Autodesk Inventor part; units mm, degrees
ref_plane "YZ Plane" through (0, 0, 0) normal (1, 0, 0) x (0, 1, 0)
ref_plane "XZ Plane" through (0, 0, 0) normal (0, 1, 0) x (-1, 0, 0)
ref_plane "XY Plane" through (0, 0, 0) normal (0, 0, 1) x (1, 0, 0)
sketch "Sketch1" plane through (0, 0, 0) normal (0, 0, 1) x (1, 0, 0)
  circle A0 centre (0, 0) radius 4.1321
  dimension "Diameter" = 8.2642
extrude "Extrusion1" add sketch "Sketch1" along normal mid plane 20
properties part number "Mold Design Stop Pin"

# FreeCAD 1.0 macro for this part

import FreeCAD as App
import Part
import Sketcher
from FreeCAD import Vector

doc = App.newDocument("Part")
params = doc.addObject("Spreadsheet::Sheet", "Params")
for row, (alias, value) in enumerate([
    ("pad1_length", "20 mm"),
], start=1):
    params.set(f"A{row}", alias)
    params.set(f"B{row}", "=" + value)
    params.setAlias(f"B{row}", alias)

body = doc.addObject("PartDesign::Body", "Body")

# Sketch on XY plane
sketch1 = body.newObject("Sketcher::SketchObject", "Sketch")
sketch1.AttachmentSupport = (doc.getObject("XY_Plane"), [""])
sketch1.MapMode = "FlatFace"
sketch1.addGeometry(Part.Circle(Vector(0, 0, 0), Vector(0, 0, 1), 4.1), False)
sketch1.addConstraint([
    Sketcher.Constraint("Coincident", 0, 3, -1, 1),
    Sketcher.Constraint("Diameter", 0, 8.2642),
])
pad1 = body.newObject("PartDesign::Pad", "Pad")
pad1.Profile = sketch1
pad1.setExpression("Length", "Params.pad1_length")
pad1.Midplane = True

doc.recompute()
